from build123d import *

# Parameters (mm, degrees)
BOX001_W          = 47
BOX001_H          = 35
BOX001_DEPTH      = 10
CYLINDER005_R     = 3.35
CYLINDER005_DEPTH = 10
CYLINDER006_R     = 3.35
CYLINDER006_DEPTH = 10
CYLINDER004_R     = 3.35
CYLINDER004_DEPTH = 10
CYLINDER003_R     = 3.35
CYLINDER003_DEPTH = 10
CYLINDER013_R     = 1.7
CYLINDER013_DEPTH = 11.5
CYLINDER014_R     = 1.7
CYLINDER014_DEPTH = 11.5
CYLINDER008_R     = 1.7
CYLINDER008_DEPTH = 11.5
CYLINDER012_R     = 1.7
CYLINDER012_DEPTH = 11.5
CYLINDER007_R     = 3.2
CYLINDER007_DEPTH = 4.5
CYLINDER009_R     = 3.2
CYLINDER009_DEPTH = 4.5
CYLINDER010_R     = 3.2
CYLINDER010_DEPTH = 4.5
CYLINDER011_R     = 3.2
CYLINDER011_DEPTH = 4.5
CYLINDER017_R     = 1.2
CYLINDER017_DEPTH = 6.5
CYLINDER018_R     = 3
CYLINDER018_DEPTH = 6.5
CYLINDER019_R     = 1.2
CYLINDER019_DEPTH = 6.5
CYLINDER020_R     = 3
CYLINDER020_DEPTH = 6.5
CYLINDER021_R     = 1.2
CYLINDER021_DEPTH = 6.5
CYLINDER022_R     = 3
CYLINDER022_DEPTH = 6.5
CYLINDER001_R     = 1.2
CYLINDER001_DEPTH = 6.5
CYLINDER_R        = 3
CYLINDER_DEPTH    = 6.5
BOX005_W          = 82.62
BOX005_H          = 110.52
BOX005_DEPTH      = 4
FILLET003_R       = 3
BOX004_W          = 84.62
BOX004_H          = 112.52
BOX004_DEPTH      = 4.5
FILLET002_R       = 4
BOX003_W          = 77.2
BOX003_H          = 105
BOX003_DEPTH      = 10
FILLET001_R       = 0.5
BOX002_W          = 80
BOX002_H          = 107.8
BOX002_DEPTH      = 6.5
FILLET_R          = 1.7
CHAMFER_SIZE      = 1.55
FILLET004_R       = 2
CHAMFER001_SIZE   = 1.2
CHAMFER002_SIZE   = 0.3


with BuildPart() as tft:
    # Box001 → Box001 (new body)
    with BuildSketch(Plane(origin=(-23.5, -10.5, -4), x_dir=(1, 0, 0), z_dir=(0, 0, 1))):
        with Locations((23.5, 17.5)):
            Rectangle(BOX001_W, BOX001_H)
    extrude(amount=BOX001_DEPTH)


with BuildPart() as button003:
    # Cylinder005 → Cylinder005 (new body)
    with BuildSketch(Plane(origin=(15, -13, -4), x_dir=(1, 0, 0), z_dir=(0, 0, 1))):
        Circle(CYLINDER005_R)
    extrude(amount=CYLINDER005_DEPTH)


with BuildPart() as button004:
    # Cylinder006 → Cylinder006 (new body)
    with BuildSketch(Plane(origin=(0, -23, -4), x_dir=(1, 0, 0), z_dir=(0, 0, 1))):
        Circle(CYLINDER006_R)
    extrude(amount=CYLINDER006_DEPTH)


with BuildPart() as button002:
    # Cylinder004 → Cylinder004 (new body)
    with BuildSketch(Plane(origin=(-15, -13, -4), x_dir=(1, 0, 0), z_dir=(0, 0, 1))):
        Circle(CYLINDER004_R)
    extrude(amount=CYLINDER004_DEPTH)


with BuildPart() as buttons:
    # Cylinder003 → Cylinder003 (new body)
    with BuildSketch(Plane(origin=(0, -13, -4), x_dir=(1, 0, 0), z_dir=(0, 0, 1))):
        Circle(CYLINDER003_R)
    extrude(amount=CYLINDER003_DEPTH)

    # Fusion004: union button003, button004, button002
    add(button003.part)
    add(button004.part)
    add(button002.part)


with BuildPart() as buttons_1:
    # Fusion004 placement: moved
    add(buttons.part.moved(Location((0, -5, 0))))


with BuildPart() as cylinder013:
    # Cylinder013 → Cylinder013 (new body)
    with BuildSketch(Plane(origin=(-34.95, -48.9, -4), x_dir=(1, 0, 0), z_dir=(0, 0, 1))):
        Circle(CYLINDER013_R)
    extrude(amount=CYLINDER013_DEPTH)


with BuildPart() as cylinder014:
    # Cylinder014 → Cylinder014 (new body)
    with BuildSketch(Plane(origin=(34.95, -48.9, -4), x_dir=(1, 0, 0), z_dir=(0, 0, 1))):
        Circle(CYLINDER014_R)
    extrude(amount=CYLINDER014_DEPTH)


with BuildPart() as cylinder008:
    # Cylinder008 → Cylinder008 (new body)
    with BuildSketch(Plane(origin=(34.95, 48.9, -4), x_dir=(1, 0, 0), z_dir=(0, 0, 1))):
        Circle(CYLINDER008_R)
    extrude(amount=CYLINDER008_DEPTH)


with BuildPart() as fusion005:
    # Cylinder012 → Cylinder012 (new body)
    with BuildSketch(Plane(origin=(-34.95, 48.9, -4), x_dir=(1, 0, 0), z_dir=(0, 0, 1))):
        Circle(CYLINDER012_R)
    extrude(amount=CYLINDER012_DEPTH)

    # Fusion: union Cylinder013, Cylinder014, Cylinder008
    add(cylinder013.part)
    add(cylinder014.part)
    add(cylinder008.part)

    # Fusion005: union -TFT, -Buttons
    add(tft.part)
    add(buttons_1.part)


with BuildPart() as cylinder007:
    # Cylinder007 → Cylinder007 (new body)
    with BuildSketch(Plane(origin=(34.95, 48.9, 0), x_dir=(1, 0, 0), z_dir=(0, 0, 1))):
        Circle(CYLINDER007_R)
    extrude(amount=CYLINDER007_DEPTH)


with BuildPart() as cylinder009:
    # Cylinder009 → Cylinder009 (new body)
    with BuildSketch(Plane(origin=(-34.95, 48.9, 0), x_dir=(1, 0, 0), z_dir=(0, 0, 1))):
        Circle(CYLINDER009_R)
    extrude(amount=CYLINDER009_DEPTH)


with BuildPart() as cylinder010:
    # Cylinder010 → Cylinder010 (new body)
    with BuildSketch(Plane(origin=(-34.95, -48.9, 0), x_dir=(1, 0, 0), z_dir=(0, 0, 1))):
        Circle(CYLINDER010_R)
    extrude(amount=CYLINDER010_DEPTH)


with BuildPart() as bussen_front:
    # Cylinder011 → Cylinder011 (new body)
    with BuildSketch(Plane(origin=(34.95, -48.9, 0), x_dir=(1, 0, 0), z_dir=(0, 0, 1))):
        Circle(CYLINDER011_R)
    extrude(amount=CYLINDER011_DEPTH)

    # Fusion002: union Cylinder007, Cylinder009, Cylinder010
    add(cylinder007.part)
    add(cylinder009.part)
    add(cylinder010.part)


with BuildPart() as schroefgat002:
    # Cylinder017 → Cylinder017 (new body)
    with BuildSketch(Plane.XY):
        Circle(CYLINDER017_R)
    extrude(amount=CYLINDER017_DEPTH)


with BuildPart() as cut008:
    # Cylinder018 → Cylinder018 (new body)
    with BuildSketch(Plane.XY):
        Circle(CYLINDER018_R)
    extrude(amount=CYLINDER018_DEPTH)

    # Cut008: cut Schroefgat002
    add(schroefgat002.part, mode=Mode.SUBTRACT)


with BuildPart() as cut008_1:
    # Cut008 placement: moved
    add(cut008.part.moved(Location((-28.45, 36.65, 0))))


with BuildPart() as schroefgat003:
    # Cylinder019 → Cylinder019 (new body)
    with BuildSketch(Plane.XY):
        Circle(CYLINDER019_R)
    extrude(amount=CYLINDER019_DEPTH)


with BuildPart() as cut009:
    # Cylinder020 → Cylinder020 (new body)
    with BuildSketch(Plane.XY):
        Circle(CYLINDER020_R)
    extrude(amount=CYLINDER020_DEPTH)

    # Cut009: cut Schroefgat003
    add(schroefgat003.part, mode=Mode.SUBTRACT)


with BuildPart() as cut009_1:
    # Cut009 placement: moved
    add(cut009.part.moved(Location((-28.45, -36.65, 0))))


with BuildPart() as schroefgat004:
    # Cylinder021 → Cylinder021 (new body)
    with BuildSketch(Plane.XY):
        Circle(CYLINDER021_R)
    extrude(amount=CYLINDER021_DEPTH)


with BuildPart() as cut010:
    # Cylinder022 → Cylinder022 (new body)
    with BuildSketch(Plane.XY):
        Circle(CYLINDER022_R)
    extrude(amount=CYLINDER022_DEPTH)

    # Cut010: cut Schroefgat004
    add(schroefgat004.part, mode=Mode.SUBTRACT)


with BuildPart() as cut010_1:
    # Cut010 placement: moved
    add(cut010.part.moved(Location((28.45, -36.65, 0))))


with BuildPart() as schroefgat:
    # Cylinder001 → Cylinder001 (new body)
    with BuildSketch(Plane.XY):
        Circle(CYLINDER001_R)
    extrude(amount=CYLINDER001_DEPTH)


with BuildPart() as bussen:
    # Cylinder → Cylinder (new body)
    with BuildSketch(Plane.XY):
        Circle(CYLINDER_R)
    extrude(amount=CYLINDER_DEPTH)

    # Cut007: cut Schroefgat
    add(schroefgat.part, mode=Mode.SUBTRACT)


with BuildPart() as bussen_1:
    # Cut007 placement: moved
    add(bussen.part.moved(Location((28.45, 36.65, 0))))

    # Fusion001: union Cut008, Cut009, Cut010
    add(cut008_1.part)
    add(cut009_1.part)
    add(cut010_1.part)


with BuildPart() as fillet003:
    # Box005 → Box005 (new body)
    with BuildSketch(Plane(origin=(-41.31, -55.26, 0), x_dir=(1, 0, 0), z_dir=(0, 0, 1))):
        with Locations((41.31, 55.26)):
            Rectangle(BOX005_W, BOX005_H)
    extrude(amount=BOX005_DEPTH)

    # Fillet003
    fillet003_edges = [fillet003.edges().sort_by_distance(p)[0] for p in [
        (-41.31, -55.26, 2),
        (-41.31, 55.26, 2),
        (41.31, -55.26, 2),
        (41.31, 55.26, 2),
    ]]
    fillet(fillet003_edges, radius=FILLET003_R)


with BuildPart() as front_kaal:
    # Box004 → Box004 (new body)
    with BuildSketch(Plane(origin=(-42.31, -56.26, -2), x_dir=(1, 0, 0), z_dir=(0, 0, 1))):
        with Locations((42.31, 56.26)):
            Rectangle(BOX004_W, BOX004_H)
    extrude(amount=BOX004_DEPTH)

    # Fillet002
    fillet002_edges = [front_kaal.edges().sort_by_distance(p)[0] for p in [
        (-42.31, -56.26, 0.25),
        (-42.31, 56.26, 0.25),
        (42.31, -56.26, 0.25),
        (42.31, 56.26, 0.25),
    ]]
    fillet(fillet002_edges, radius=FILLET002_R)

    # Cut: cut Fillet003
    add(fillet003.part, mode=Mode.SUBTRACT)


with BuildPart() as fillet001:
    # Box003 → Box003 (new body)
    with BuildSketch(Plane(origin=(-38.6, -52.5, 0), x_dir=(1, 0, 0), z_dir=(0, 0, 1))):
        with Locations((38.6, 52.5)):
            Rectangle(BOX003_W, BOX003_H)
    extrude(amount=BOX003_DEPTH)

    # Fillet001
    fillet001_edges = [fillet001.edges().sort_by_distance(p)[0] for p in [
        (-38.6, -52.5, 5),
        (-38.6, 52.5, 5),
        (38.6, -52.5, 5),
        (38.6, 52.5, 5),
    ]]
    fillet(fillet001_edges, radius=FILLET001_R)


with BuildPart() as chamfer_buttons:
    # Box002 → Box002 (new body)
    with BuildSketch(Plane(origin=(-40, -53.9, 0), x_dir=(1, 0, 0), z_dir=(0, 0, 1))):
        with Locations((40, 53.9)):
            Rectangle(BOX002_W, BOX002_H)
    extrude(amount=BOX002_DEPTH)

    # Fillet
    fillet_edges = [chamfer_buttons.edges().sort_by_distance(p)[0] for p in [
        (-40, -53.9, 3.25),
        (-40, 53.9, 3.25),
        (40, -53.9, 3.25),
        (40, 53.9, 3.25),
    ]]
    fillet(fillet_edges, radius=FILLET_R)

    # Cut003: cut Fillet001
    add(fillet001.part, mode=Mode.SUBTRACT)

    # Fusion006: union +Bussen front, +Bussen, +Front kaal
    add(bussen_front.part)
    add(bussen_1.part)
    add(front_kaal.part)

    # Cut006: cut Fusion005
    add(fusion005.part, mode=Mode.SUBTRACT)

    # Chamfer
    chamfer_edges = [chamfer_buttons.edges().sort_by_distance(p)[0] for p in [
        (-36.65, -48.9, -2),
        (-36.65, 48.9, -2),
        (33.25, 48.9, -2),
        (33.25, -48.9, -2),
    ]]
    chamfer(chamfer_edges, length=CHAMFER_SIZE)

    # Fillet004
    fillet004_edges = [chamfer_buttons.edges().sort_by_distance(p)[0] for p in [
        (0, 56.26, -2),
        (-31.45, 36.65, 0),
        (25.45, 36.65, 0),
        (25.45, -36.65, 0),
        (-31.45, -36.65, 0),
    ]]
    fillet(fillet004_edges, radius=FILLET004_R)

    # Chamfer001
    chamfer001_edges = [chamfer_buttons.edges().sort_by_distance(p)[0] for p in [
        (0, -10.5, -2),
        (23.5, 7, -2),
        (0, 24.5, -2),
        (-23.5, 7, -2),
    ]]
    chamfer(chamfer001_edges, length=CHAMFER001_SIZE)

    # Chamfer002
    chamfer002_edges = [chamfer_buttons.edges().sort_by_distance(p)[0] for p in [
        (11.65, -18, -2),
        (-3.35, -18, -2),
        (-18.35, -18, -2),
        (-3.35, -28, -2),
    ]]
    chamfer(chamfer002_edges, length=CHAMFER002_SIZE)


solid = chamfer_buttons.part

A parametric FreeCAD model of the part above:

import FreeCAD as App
import Part
import Sketcher
from FreeCAD import Vector
Q = App.Units.Quantity


def edges_at(feature, points):
    """Names of the edges that pass closest to the given points."""
    edges = feature.Shape.Edges
    near = lambda p: min(range(len(edges)), key=lambda i: edges[i].distToShape(Part.Vertex(*p))[0])
    return sorted({f"Edge{near(p) + 1}" for p in points})

doc = App.newDocument("Part")
params = doc.addObject("Spreadsheet::Sheet", "Params")
for row, (alias, value) in enumerate([
    ("sketch1_width", "47 mm"),
    ("sketch1_height", "35 mm"),
    ("pad1_length", "10 mm"),
    ("sketch2_diameter", "6.7 mm"),
    ("pad2_length", "10 mm"),
    ("sketch3_diameter", "6.7 mm"),
    ("pad3_length", "10 mm"),
    ("sketch4_diameter", "6.7 mm"),
    ("pad4_length", "10 mm"),
    ("sketch5_diameter", "6.7 mm"),
    ("pad5_length", "10 mm"),
    ("sketch6_diameter", "3.4 mm"),
    ("pad6_length", "11.5 mm"),
    ("sketch7_diameter", "3.4 mm"),
    ("pad7_length", "11.5 mm"),
    ("sketch8_diameter", "3.4 mm"),
    ("pad8_length", "11.5 mm"),
    ("sketch9_diameter", "3.4 mm"),
    ("pad9_length", "11.5 mm"),
    ("sketch10_diameter", "6.4 mm"),
    ("pad10_length", "4.5 mm"),
    ("sketch11_diameter", "6.4 mm"),
    ("pad11_length", "4.5 mm"),
    ("sketch12_diameter", "6.4 mm"),
    ("pad12_length", "4.5 mm"),
    ("sketch13_diameter", "6.4 mm"),
    ("pad13_length", "4.5 mm"),
    ("sketch14_diameter", "2.4 mm"),
    ("pad14_length", "6.5 mm"),
    ("sketch15_diameter", "6 mm"),
    ("pad15_length", "6.5 mm"),
    ("sketch16_diameter", "2.4 mm"),
    ("pad16_length", "6.5 mm"),
    ("sketch17_diameter", "6 mm"),
    ("pad17_length", "6.5 mm"),
    ("sketch18_diameter", "2.4 mm"),
    ("pad18_length", "6.5 mm"),
    ("sketch19_diameter", "6 mm"),
    ("pad19_length", "6.5 mm"),
    ("sketch20_diameter", "2.4 mm"),
    ("pad20_length", "6.5 mm"),
    ("sketch21_diameter", "6 mm"),
    ("pad21_length", "6.5 mm"),
    ("sketch22_width", "82.62 mm"),
    ("sketch22_height", "110.52 mm"),
    ("pad22_length", "4 mm"),
    ("fillet_radius", "3 mm"),
    ("sketch23_width", "84.62 mm"),
    ("sketch23_height", "112.52 mm"),
    ("pad23_length", "4.5 mm"),
    ("fillet2_radius", "4 mm"),
    ("sketch24_height", "105 mm"),
    ("sketch24_width", "77.2 mm"),
    ("pad24_length", "10 mm"),
    ("fillet3_radius", "0.5 mm"),
    ("sketch25_width", "80 mm"),
    ("sketch25_height", "107.8 mm"),
    ("pad25_length", "6.5 mm"),
    ("fillet4_radius", "1.7 mm"),
    ("chamfer_size", "1.55 mm"),
    ("fillet5_radius", "2 mm"),
    ("chamfer2_size", "1.2 mm"),
    ("chamfer3_size", "0.3 mm"),
], start=1):
    params.set(f"A{row}", alias)
    params.set(f"B{row}", "=" + value)
    params.setAlias(f"B{row}", alias)

body = doc.addObject("PartDesign::Body", "Body")

sketch1 = body.newObject("Sketcher::SketchObject", "Sketch")
sketch1.AttachmentSupport = (doc.getObject("XY_Plane"), [""])
sketch1.MapMode = "FlatFace"
sketch1.AttachmentOffset = App.Placement(Vector(0, 0, -4), App.Rotation())
sketch1.addGeometry(Part.LineSegment(Vector(-24, 24, 0), Vector(-24, -10, 0)), False)
sketch1.addGeometry(Part.LineSegment(Vector(-24, -10, 0), Vector(24, -10, 0)), False)
sketch1.addGeometry(Part.LineSegment(Vector(24, -10, 0), Vector(24, 24, 0)), False)
sketch1.addGeometry(Part.LineSegment(Vector(24, 24, 0), Vector(-24, 24, 0)), False)
sketch1.addConstraint(Sketcher.Constraint("Coincident", 0, 2, 1, 1))
sketch1.addConstraint(Sketcher.Constraint("Coincident", 1, 2, 2, 1))
sketch1.addConstraint(Sketcher.Constraint("Coincident", 2, 2, 3, 1))
sketch1.addConstraint(Sketcher.Constraint("Coincident", 3, 2, 0, 1))
sketch1.addConstraint(Sketcher.Constraint("Vertical", 0))
sketch1.addConstraint(Sketcher.Constraint("Horizontal", 1))
sketch1.addConstraint(Sketcher.Constraint("Vertical", 2))
sketch1.addConstraint(Sketcher.Constraint("Horizontal", 3))
sketch1.addConstraint(Sketcher.Constraint("DistanceX", 1, 1, 1, 2, Q("47 mm")))
sketch1.addConstraint(Sketcher.Constraint("DistanceY", 0, 2, 0, 1, Q("35 mm")))
sketch1.addConstraint(Sketcher.Constraint("DistanceX", 0, 2, -1, 1, Q("23.5 mm")))
sketch1.addConstraint(Sketcher.Constraint("DistanceY", 0, 2, -1, 1, Q("10.5 mm")))
sketch1.setExpression("Constraints[8]", "Params.sketch1_width")
sketch1.setExpression("Constraints[9]", "Params.sketch1_height")
pad1 = body.newObject("PartDesign::Pad", "Pad")
pad1.Profile = sketch1
pad1.setExpression("Length", "Params.pad1_length")
body2 = doc.addObject("PartDesign::Body", "Body001")

sketch2 = body2.newObject("Sketcher::SketchObject", "Sketch001")
sketch2.AttachmentSupport = (doc.getObject("XY_Plane001"), [""])
sketch2.MapMode = "FlatFace"
sketch2.AttachmentOffset = App.Placement(Vector(0, 0, -4), App.Rotation())
sketch2.addGeometry(Part.Circle(Vector(15, -13, 0), Vector(0, 0, 1), 3.4), False)
sketch2.addConstraint(Sketcher.Constraint("Diameter", 0, Q("6.7 mm")))
sketch2.addConstraint(Sketcher.Constraint("DistanceX", -1, 1, 0, 3, Q("15 mm")))
sketch2.addConstraint(Sketcher.Constraint("DistanceY", 0, 3, -1, 1, Q("13 mm")))
sketch2.setExpression("Constraints[0]", "Params.sketch2_diameter")
pad2 = body2.newObject("PartDesign::Pad", "Pad001")
pad2.Profile = sketch2
pad2.setExpression("Length", "Params.pad2_length")
body3 = doc.addObject("PartDesign::Body", "Body002")

sketch3 = body3.newObject("Sketcher::SketchObject", "Sketch002")
sketch3.AttachmentSupport = (doc.getObject("XY_Plane002"), [""])
sketch3.MapMode = "FlatFace"
sketch3.AttachmentOffset = App.Placement(Vector(0, 0, -4), App.Rotation())
sketch3.addGeometry(Part.Circle(Vector(0, -23, 0), Vector(0, 0, 1), 3.4), False)
sketch3.addConstraint(Sketcher.Constraint("PointOnObject", 0, 3, -2))
sketch3.addConstraint(Sketcher.Constraint("Diameter", 0, Q("6.7 mm")))
sketch3.addConstraint(Sketcher.Constraint("DistanceY", 0, 3, -1, 1, Q("23 mm")))
sketch3.setExpression("Constraints[1]", "Params.sketch3_diameter")
pad3 = body3.newObject("PartDesign::Pad", "Pad002")
pad3.Profile = sketch3
pad3.setExpression("Length", "Params.pad3_length")
body4 = doc.addObject("PartDesign::Body", "Body003")

sketch4 = body4.newObject("Sketcher::SketchObject", "Sketch003")
sketch4.AttachmentSupport = (doc.getObject("XY_Plane003"), [""])
sketch4.MapMode = "FlatFace"
sketch4.AttachmentOffset = App.Placement(Vector(0, 0, -4), App.Rotation())
sketch4.addGeometry(Part.Circle(Vector(-15, -13, 0), Vector(0, 0, 1), 3.4), False)
sketch4.addConstraint(Sketcher.Constraint("Diameter", 0, Q("6.7 mm")))
sketch4.addConstraint(Sketcher.Constraint("DistanceX", 0, 3, -1, 1, Q("15 mm")))
sketch4.addConstraint(Sketcher.Constraint("DistanceY", 0, 3, -1, 1, Q("13 mm")))
sketch4.setExpression("Constraints[0]", "Params.sketch4_diameter")
pad4 = body4.newObject("PartDesign::Pad", "Pad003")
pad4.Profile = sketch4
pad4.setExpression("Length", "Params.pad4_length")
body5 = doc.addObject("PartDesign::Body", "Body004")
body5.AllowCompound = True

sketch5 = body5.newObject("Sketcher::SketchObject", "Sketch004")
sketch5.AttachmentSupport = (doc.getObject("XY_Plane004"), [""])
sketch5.MapMode = "FlatFace"
sketch5.AttachmentOffset = App.Placement(Vector(0, 0, -4), App.Rotation())
sketch5.addGeometry(Part.Circle(Vector(0, -13, 0), Vector(0, 0, 1), 3.4), False)
sketch5.addConstraint(Sketcher.Constraint("PointOnObject", 0, 3, -2))
sketch5.addConstraint(Sketcher.Constraint("Diameter", 0, Q("6.7 mm")))
sketch5.addConstraint(Sketcher.Constraint("DistanceY", 0, 3, -1, 1, Q("13 mm")))
sketch5.setExpression("Constraints[1]", "Params.sketch5_diameter")
pad5 = body5.newObject("PartDesign::Pad", "Pad004")
pad5.Profile = sketch5
pad5.setExpression("Length", "Params.pad5_length")
doc.recompute()

boolean = body5.newObject("PartDesign::Boolean", "Boolean")
boolean.Type = "Fuse"
boolean.addObjects([body2])
doc.recompute()

boolean2 = body5.newObject("PartDesign::Boolean", "Boolean001")
boolean2.Type = "Fuse"
boolean2.addObjects([body3])
doc.recompute()

boolean3 = body5.newObject("PartDesign::Boolean", "Boolean002")
boolean3.Type = "Fuse"
boolean3.addObjects([body4])
body6 = doc.addObject("PartDesign::Body", "Body005")
body6.AllowCompound = True
doc.recompute()

body5.Placement = App.Placement(Vector(0, -5, 0), App.Rotation(Vector(0, 0, 1), 0))
boolean4 = body6.newObject("PartDesign::Boolean", "Boolean003")
boolean4.Type = "Fuse"
boolean4.addObjects([body5])
body7 = doc.addObject("PartDesign::Body", "Body006")

sketch6 = body7.newObject("Sketcher::SketchObject", "Sketch005")
sketch6.AttachmentSupport = (doc.getObject("XY_Plane006"), [""])
sketch6.MapMode = "FlatFace"
sketch6.AttachmentOffset = App.Placement(Vector(0, 0, -4), App.Rotation())
sketch6.addGeometry(Part.Circle(Vector(-35, -48.9, 0), Vector(0, 0, 1), 1.7), False)
sketch6.addConstraint(Sketcher.Constraint("Diameter", 0, Q("3.4 mm")))
sketch6.addConstraint(Sketcher.Constraint("DistanceY", 0, 3, -1, 1, Q("48.9 mm")))
sketch6.addConstraint(Sketcher.Constraint("DistanceX", 0, 3, -1, 1, Q("34.95 mm")))
sketch6.setExpression("Constraints[0]", "Params.sketch6_diameter")
pad6 = body7.newObject("PartDesign::Pad", "Pad005")
pad6.Profile = sketch6
pad6.setExpression("Length", "Params.pad6_length")
body8 = doc.addObject("PartDesign::Body", "Body007")

sketch7 = body8.newObject("Sketcher::SketchObject", "Sketch006")
sketch7.AttachmentSupport = (doc.getObject("XY_Plane007"), [""])
sketch7.MapMode = "FlatFace"
sketch7.AttachmentOffset = App.Placement(Vector(0, 0, -4), App.Rotation())
sketch7.addGeometry(Part.Circle(Vector(35, -48.9, 0), Vector(0, 0, 1), 1.7), False)
sketch7.addConstraint(Sketcher.Constraint("Diameter", 0, Q("3.4 mm")))
sketch7.addConstraint(Sketcher.Constraint("DistanceY", 0, 3, -1, 1, Q("48.9 mm")))
sketch7.addConstraint(Sketcher.Constraint("DistanceX", -1, 1, 0, 3, Q("34.95 mm")))
sketch7.setExpression("Constraints[0]", "Params.sketch7_diameter")
pad7 = body8.newObject("PartDesign::Pad", "Pad006")
pad7.Profile = sketch7
pad7.setExpression("Length", "Params.pad7_length")
body9 = doc.addObject("PartDesign::Body", "Body008")

sketch8 = body9.newObject("Sketcher::SketchObject", "Sketch007")
sketch8.AttachmentSupport = (doc.getObject("XY_Plane008"), [""])
sketch8.MapMode = "FlatFace"
sketch8.AttachmentOffset = App.Placement(Vector(0, 0, -4), App.Rotation())
sketch8.addGeometry(Part.Circle(Vector(35, 48.9, 0), Vector(0, 0, 1), 1.7), False)
sketch8.addConstraint(Sketcher.Constraint("Diameter", 0, Q("3.4 mm")))
sketch8.addConstraint(Sketcher.Constraint("DistanceY", -1, 1, 0, 3, Q("48.9 mm")))
sketch8.addConstraint(Sketcher.Constraint("DistanceX", -1, 1, 0, 3, Q("34.95 mm")))
sketch8.setExpression("Constraints[0]", "Params.sketch8_diameter")
pad8 = body9.newObject("PartDesign::Pad", "Pad007")
pad8.Profile = sketch8
pad8.setExpression("Length", "Params.pad8_length")
body10 = doc.addObject("PartDesign::Body", "Body009")
body10.AllowCompound = True

sketch9 = body10.newObject("Sketcher::SketchObject", "Sketch008")
sketch9.AttachmentSupport = (doc.getObject("XY_Plane009"), [""])
sketch9.MapMode = "FlatFace"
sketch9.AttachmentOffset = App.Placement(Vector(0, 0, -4), App.Rotation())
sketch9.addGeometry(Part.Circle(Vector(-35, 48.9, 0), Vector(0, 0, 1), 1.7), False)
sketch9.addConstraint(Sketcher.Constraint("Diameter", 0, Q("3.4 mm")))
sketch9.addConstraint(Sketcher.Constraint("DistanceY", -1, 1, 0, 3, Q("48.9 mm")))
sketch9.addConstraint(Sketcher.Constraint("DistanceX", 0, 3, -1, 1, Q("34.95 mm")))
sketch9.setExpression("Constraints[0]", "Params.sketch9_diameter")
pad9 = body10.newObject("PartDesign::Pad", "Pad008")
pad9.Profile = sketch9
pad9.setExpression("Length", "Params.pad9_length")
doc.recompute()

boolean5 = body10.newObject("PartDesign::Boolean", "Boolean004")
boolean5.Type = "Fuse"
boolean5.addObjects([body7])
doc.recompute()

boolean6 = body10.newObject("PartDesign::Boolean", "Boolean005")
boolean6.Type = "Fuse"
boolean6.addObjects([body8])
doc.recompute()

boolean7 = body10.newObject("PartDesign::Boolean", "Boolean006")
boolean7.Type = "Fuse"
boolean7.addObjects([body9])
doc.recompute()

boolean8 = body10.newObject("PartDesign::Boolean", "Boolean007")
boolean8.Type = "Fuse"
boolean8.addObjects([body])
doc.recompute()

boolean9 = body10.newObject("PartDesign::Boolean", "Boolean008")
boolean9.Type = "Fuse"
boolean9.addObjects([body6])
body11 = doc.addObject("PartDesign::Body", "Body010")

sketch10 = body11.newObject("Sketcher::SketchObject", "Sketch009")
sketch10.AttachmentSupport = (doc.getObject("XY_Plane010"), [""])
sketch10.MapMode = "FlatFace"
sketch10.addGeometry(Part.Circle(Vector(35, 48.9, 0), Vector(0, 0, 1), 3.2), False)
sketch10.addConstraint(Sketcher.Constraint("Diameter", 0, Q("6.4 mm")))
sketch10.addConstraint(Sketcher.Constraint("DistanceY", -1, 1, 0, 3, Q("48.9 mm")))
sketch10.addConstraint(Sketcher.Constraint("DistanceX", -1, 1, 0, 3, Q("34.95 mm")))
sketch10.setExpression("Constraints[0]", "Params.sketch10_diameter")
pad10 = body11.newObject("PartDesign::Pad", "Pad009")
pad10.Profile = sketch10
pad10.setExpression("Length", "Params.pad10_length")
body12 = doc.addObject("PartDesign::Body", "Body011")

sketch11 = body12.newObject("Sketcher::SketchObject", "Sketch010")
sketch11.AttachmentSupport = (doc.getObject("XY_Plane011"), [""])
sketch11.MapMode = "FlatFace"
sketch11.addGeometry(Part.Circle(Vector(-35, 48.9, 0), Vector(0, 0, 1), 3.2), False)
sketch11.addConstraint(Sketcher.Constraint("Diameter", 0, Q("6.4 mm")))
sketch11.addConstraint(Sketcher.Constraint("DistanceY", -1, 1, 0, 3, Q("48.9 mm")))
sketch11.addConstraint(Sketcher.Constraint("DistanceX", 0, 3, -1, 1, Q("34.95 mm")))
sketch11.setExpression("Constraints[0]", "Params.sketch11_diameter")
pad11 = body12.newObject("PartDesign::Pad", "Pad010")
pad11.Profile = sketch11
pad11.setExpression("Length", "Params.pad11_length")
body13 = doc.addObject("PartDesign::Body", "Body012")

sketch12 = body13.newObject("Sketcher::SketchObject", "Sketch011")
sketch12.AttachmentSupport = (doc.getObject("XY_Plane012"), [""])
sketch12.MapMode = "FlatFace"
sketch12.addGeometry(Part.Circle(Vector(-35, -48.9, 0), Vector(0, 0, 1), 3.2), False)
sketch12.addConstraint(Sketcher.Constraint("Diameter", 0, Q("6.4 mm")))
sketch12.addConstraint(Sketcher.Constraint("DistanceY", 0, 3, -1, 1, Q("48.9 mm")))
sketch12.addConstraint(Sketcher.Constraint("DistanceX", 0, 3, -1, 1, Q("34.95 mm")))
sketch12.setExpression("Constraints[0]", "Params.sketch12_diameter")
pad12 = body13.newObject("PartDesign::Pad", "Pad011")
pad12.Profile = sketch12
pad12.setExpression("Length", "Params.pad12_length")
body14 = doc.addObject("PartDesign::Body", "Body013")
body14.AllowCompound = True

sketch13 = body14.newObject("Sketcher::SketchObject", "Sketch012")
sketch13.AttachmentSupport = (doc.getObject("XY_Plane013"), [""])
sketch13.MapMode = "FlatFace"
sketch13.addGeometry(Part.Circle(Vector(35, -48.9, 0), Vector(0, 0, 1), 3.2), False)
sketch13.addConstraint(Sketcher.Constraint("Diameter", 0, Q("6.4 mm")))
sketch13.addConstraint(Sketcher.Constraint("DistanceY", 0, 3, -1, 1, Q("48.9 mm")))
sketch13.addConstraint(Sketcher.Constraint("DistanceX", -1, 1, 0, 3, Q("34.95 mm")))
sketch13.setExpression("Constraints[0]", "Params.sketch13_diameter")
pad13 = body14.newObject("PartDesign::Pad", "Pad012")
pad13.Profile = sketch13
pad13.setExpression("Length", "Params.pad13_length")
doc.recompute()

boolean10 = body14.newObject("PartDesign::Boolean", "Boolean009")
boolean10.Type = "Fuse"
boolean10.addObjects([body11])
doc.recompute()

boolean11 = body14.newObject("PartDesign::Boolean", "Boolean010")
boolean11.Type = "Fuse"
boolean11.addObjects([body12])
doc.recompute()

boolean12 = body14.newObject("PartDesign::Boolean", "Boolean011")
boolean12.Type = "Fuse"
boolean12.addObjects([body13])
body15 = doc.addObject("PartDesign::Body", "Body014")

sketch14 = body15.newObject("Sketcher::SketchObject", "Sketch013")
sketch14.AttachmentSupport = (doc.getObject("XY_Plane014"), [""])
sketch14.MapMode = "FlatFace"
sketch14.addGeometry(Part.Circle(Vector(0, 0, 0), Vector(0, 0, 1), 1.2), False)
sketch14.addConstraint(Sketcher.Constraint("Coincident", 0, 3, -1, 1))
sketch14.addConstraint(Sketcher.Constraint("Diameter", 0, Q("2.4 mm")))
sketch14.setExpression("Constraints[1]", "Params.sketch14_diameter")
pad14 = body15.newObject("PartDesign::Pad", "Pad013")
pad14.Profile = sketch14
pad14.setExpression("Length", "Params.pad14_length")
body16 = doc.addObject("PartDesign::Body", "Body015")

sketch15 = body16.newObject("Sketcher::SketchObject", "Sketch014")
sketch15.AttachmentSupport = (doc.getObject("XY_Plane015"), [""])
sketch15.MapMode = "FlatFace"
sketch15.addGeometry(Part.Circle(Vector(0, 0, 0), Vector(0, 0, 1), 3), False)
sketch15.addConstraint(Sketcher.Constraint("Coincident", 0, 3, -1, 1))
sketch15.addConstraint(Sketcher.Constraint("Diameter", 0, Q("6 mm")))
sketch15.setExpression("Constraints[1]", "Params.sketch15_diameter")
pad15 = body16.newObject("PartDesign::Pad", "Pad014")
pad15.Profile = sketch15
pad15.setExpression("Length", "Params.pad15_length")
doc.recompute()

boolean13 = body16.newObject("PartDesign::Boolean", "Boolean012")
boolean13.Type = "Cut"
boolean13.addObjects([body15])
body17 = doc.addObject("PartDesign::Body", "Body016")
doc.recompute()

body16.Placement = App.Placement(Vector(-28.45, 36.65, 0), App.Rotation(Vector(0, 0, 1), 0))
boolean14 = body17.newObject("PartDesign::Boolean", "Boolean013")
boolean14.Type = "Fuse"
boolean14.addObjects([body16])
body18 = doc.addObject("PartDesign::Body", "Body017")

sketch16 = body18.newObject("Sketcher::SketchObject", "Sketch015")
sketch16.AttachmentSupport = (doc.getObject("XY_Plane017"), [""])
sketch16.MapMode = "FlatFace"
sketch16.addGeometry(Part.Circle(Vector(0, 0, 0), Vector(0, 0, 1), 1.2), False)
sketch16.addConstraint(Sketcher.Constraint("Coincident", 0, 3, -1, 1))
sketch16.addConstraint(Sketcher.Constraint("Diameter", 0, Q("2.4 mm")))
sketch16.setExpression("Constraints[1]", "Params.sketch16_diameter")
pad16 = body18.newObject("PartDesign::Pad", "Pad015")
pad16.Profile = sketch16
pad16.setExpression("Length", "Params.pad16_length")
body19 = doc.addObject("PartDesign::Body", "Body018")

sketch17 = body19.newObject("Sketcher::SketchObject", "Sketch016")
sketch17.AttachmentSupport = (doc.getObject("XY_Plane018"), [""])
sketch17.MapMode = "FlatFace"
sketch17.addGeometry(Part.Circle(Vector(0, 0, 0), Vector(0, 0, 1), 3), False)
sketch17.addConstraint(Sketcher.Constraint("Coincident", 0, 3, -1, 1))
sketch17.addConstraint(Sketcher.Constraint("Diameter", 0, Q("6 mm")))
sketch17.setExpression("Constraints[1]", "Params.sketch17_diameter")
pad17 = body19.newObject("PartDesign::Pad", "Pad016")
pad17.Profile = sketch17
pad17.setExpression("Length", "Params.pad17_length")
doc.recompute()

boolean15 = body19.newObject("PartDesign::Boolean", "Boolean014")
boolean15.Type = "Cut"
boolean15.addObjects([body18])
body20 = doc.addObject("PartDesign::Body", "Body019")
doc.recompute()

body19.Placement = App.Placement(Vector(-28.45, -36.65, 0), App.Rotation(Vector(0, 0, 1), 0))
boolean16 = body20.newObject("PartDesign::Boolean", "Boolean015")
boolean16.Type = "Fuse"
boolean16.addObjects([body19])
body21 = doc.addObject("PartDesign::Body", "Body020")

sketch18 = body21.newObject("Sketcher::SketchObject", "Sketch017")
sketch18.AttachmentSupport = (doc.getObject("XY_Plane020"), [""])
sketch18.MapMode = "FlatFace"
sketch18.addGeometry(Part.Circle(Vector(0, 0, 0), Vector(0, 0, 1), 1.2), False)
sketch18.addConstraint(Sketcher.Constraint("Coincident", 0, 3, -1, 1))
sketch18.addConstraint(Sketcher.Constraint("Diameter", 0, Q("2.4 mm")))
sketch18.setExpression("Constraints[1]", "Params.sketch18_diameter")
pad18 = body21.newObject("PartDesign::Pad", "Pad017")
pad18.Profile = sketch18
pad18.setExpression("Length", "Params.pad18_length")
body22 = doc.addObject("PartDesign::Body", "Body021")

sketch19 = body22.newObject("Sketcher::SketchObject", "Sketch018")
sketch19.AttachmentSupport = (doc.getObject("XY_Plane021"), [""])
sketch19.MapMode = "FlatFace"
sketch19.addGeometry(Part.Circle(Vector(0, 0, 0), Vector(0, 0, 1), 3), False)
sketch19.addConstraint(Sketcher.Constraint("Coincident", 0, 3, -1, 1))
sketch19.addConstraint(Sketcher.Constraint("Diameter", 0, Q("6 mm")))
sketch19.setExpression("Constraints[1]", "Params.sketch19_diameter")
pad19 = body22.newObject("PartDesign::Pad", "Pad018")
pad19.Profile = sketch19
pad19.setExpression("Length", "Params.pad19_length")
doc.recompute()

boolean17 = body22.newObject("PartDesign::Boolean", "Boolean016")
boolean17.Type = "Cut"
boolean17.addObjects([body21])
body23 = doc.addObject("PartDesign::Body", "Body022")
doc.recompute()

body22.Placement = App.Placement(Vector(28.45, -36.65, 0), App.Rotation(Vector(0, 0, 1), 0))
boolean18 = body23.newObject("PartDesign::Boolean", "Boolean017")
boolean18.Type = "Fuse"
boolean18.addObjects([body22])
body24 = doc.addObject("PartDesign::Body", "Body023")

sketch20 = body24.newObject("Sketcher::SketchObject", "Sketch019")
sketch20.AttachmentSupport = (doc.getObject("XY_Plane023"), [""])
sketch20.MapMode = "FlatFace"
sketch20.addGeometry(Part.Circle(Vector(0, 0, 0), Vector(0, 0, 1), 1.2), False)
sketch20.addConstraint(Sketcher.Constraint("Coincident", 0, 3, -1, 1))
sketch20.addConstraint(Sketcher.Constraint("Diameter", 0, Q("2.4 mm")))
sketch20.setExpression("Constraints[1]", "Params.sketch20_diameter")
pad20 = body24.newObject("PartDesign::Pad", "Pad019")
pad20.Profile = sketch20
pad20.setExpression("Length", "Params.pad20_length")
body25 = doc.addObject("PartDesign::Body", "Body024")

sketch21 = body25.newObject("Sketcher::SketchObject", "Sketch020")
sketch21.AttachmentSupport = (doc.getObject("XY_Plane024"), [""])
sketch21.MapMode = "FlatFace"
sketch21.addGeometry(Part.Circle(Vector(0, 0, 0), Vector(0, 0, 1), 3), False)
sketch21.addConstraint(Sketcher.Constraint("Coincident", 0, 3, -1, 1))
sketch21.addConstraint(Sketcher.Constraint("Diameter", 0, Q("6 mm")))
sketch21.setExpression("Constraints[1]", "Params.sketch21_diameter")
pad21 = body25.newObject("PartDesign::Pad", "Pad020")
pad21.Profile = sketch21
pad21.setExpression("Length", "Params.pad21_length")
doc.recompute()

boolean19 = body25.newObject("PartDesign::Boolean", "Boolean018")
boolean19.Type = "Cut"
boolean19.addObjects([body24])
body26 = doc.addObject("PartDesign::Body", "Body025")
body26.AllowCompound = True
doc.recompute()

body25.Placement = App.Placement(Vector(28.45, 36.65, 0), App.Rotation(Vector(0, 0, 1), 0))
boolean20 = body26.newObject("PartDesign::Boolean", "Boolean019")
boolean20.Type = "Fuse"
boolean20.addObjects([body25])
doc.recompute()

boolean21 = body26.newObject("PartDesign::Boolean", "Boolean020")
boolean21.Type = "Fuse"
boolean21.addObjects([body17])
doc.recompute()

boolean22 = body26.newObject("PartDesign::Boolean", "Boolean021")
boolean22.Type = "Fuse"
boolean22.addObjects([body20])
doc.recompute()

boolean23 = body26.newObject("PartDesign::Boolean", "Boolean022")
boolean23.Type = "Fuse"
boolean23.addObjects([body23])
body27 = doc.addObject("PartDesign::Body", "Body026")

sketch22 = body27.newObject("Sketcher::SketchObject", "Sketch021")
sketch22.AttachmentSupport = (doc.getObject("XY_Plane026"), [""])
sketch22.MapMode = "FlatFace"
sketch22.addGeometry(Part.LineSegment(Vector(-41, 55, 0), Vector(-41, -55, 0)), False)
sketch22.addGeometry(Part.LineSegment(Vector(-41, -55, 0), Vector(41, -55, 0)), False)
sketch22.addGeometry(Part.LineSegment(Vector(41, -55, 0), Vector(41, 55, 0)), False)
sketch22.addGeometry(Part.LineSegment(Vector(41, 55, 0), Vector(-41, 55, 0)), False)
sketch22.addConstraint(Sketcher.Constraint("Coincident", 0, 2, 1, 1))
sketch22.addConstraint(Sketcher.Constraint("Coincident", 1, 2, 2, 1))
sketch22.addConstraint(Sketcher.Constraint("Coincident", 2, 2, 3, 1))
sketch22.addConstraint(Sketcher.Constraint("Coincident", 3, 2, 0, 1))
sketch22.addConstraint(Sketcher.Constraint("Vertical", 0))
sketch22.addConstraint(Sketcher.Constraint("Horizontal", 1))
sketch22.addConstraint(Sketcher.Constraint("Vertical", 2))
sketch22.addConstraint(Sketcher.Constraint("Horizontal", 3))
sketch22.addConstraint(Sketcher.Constraint("Symmetric", 0, 2, 2, 2, -1, 1))
sketch22.addConstraint(Sketcher.Constraint("DistanceX", 1, 1, 1, 2, Q("82.62 mm")))
sketch22.addConstraint(Sketcher.Constraint("DistanceY", 0, 2, 0, 1, Q("110.52 mm")))
sketch22.setExpression("Constraints[9]", "Params.sketch22_width")
sketch22.setExpression("Constraints[10]", "Params.sketch22_height")
pad22 = body27.newObject("PartDesign::Pad", "Pad021")
pad22.Profile = sketch22
pad22.setExpression("Length", "Params.pad22_length")
doc.recompute()

fillet = body27.newObject("PartDesign::Fillet", "Fillet")
fillet.Base = (pad22, edges_at(pad22, [
    (-41.31, -55.26, 2),
    (-41.31, 55.26, 2),
    (41.31, -55.26, 2),
    (41.31, 55.26, 2),
]))
fillet.setExpression("Radius", "Params.fillet_radius")
body28 = doc.addObject("PartDesign::Body", "Body027")

sketch23 = body28.newObject("Sketcher::SketchObject", "Sketch022")
sketch23.AttachmentSupport = (doc.getObject("XY_Plane027"), [""])
sketch23.MapMode = "FlatFace"
sketch23.AttachmentOffset = App.Placement(Vector(0, 0, -2), App.Rotation())
sketch23.addGeometry(Part.LineSegment(Vector(-42, 56, 0), Vector(-42, -56, 0)), False)
sketch23.addGeometry(Part.LineSegment(Vector(-42, -56, 0), Vector(42, -56, 0)), False)
sketch23.addGeometry(Part.LineSegment(Vector(42, -56, 0), Vector(42, 56, 0)), False)
sketch23.addGeometry(Part.LineSegment(Vector(42, 56, 0), Vector(-42, 56, 0)), False)
sketch23.addConstraint(Sketcher.Constraint("Coincident", 0, 2, 1, 1))
sketch23.addConstraint(Sketcher.Constraint("Coincident", 1, 2, 2, 1))
sketch23.addConstraint(Sketcher.Constraint("Coincident", 2, 2, 3, 1))
sketch23.addConstraint(Sketcher.Constraint("Coincident", 3, 2, 0, 1))
sketch23.addConstraint(Sketcher.Constraint("Vertical", 0))
sketch23.addConstraint(Sketcher.Constraint("Horizontal", 1))
sketch23.addConstraint(Sketcher.Constraint("Vertical", 2))
sketch23.addConstraint(Sketcher.Constraint("Horizontal", 3))
sketch23.addConstraint(Sketcher.Constraint("Symmetric", 0, 2, 2, 2, -1, 1))
sketch23.addConstraint(Sketcher.Constraint("DistanceX", 1, 1, 1, 2, Q("84.62 mm")))
sketch23.addConstraint(Sketcher.Constraint("DistanceY", 0, 2, 0, 1, Q("112.52 mm")))
sketch23.setExpression("Constraints[9]", "Params.sketch23_width")
sketch23.setExpression("Constraints[10]", "Params.sketch23_height")
pad23 = body28.newObject("PartDesign::Pad", "Pad022")
pad23.Profile = sketch23
pad23.setExpression("Length", "Params.pad23_length")
doc.recompute()

fillet2 = body28.newObject("PartDesign::Fillet", "Fillet001")
fillet2.Base = (pad23, edges_at(pad23, [
    (-42.31, -56.26, 0.25),
    (-42.31, 56.26, 0.25),
    (42.31, -56.26, 0.25),
    (42.31, 56.26, 0.25),
]))
fillet2.setExpression("Radius", "Params.fillet2_radius")
doc.recompute()

boolean24 = body28.newObject("PartDesign::Boolean", "Boolean023")
boolean24.Type = "Cut"
boolean24.addObjects([body27])
body29 = doc.addObject("PartDesign::Body", "Body028")

sketch24 = body29.newObject("Sketcher::SketchObject", "Sketch023")
sketch24.AttachmentSupport = (doc.getObject("XY_Plane028"), [""])
sketch24.MapMode = "FlatFace"
sketch24.addGeometry(Part.LineSegment(Vector(-39, 52, 0), Vector(-39, -52, 0)), False)
sketch24.addGeometry(Part.LineSegment(Vector(-39, -52, 0), Vector(39, -52, 0)), False)
sketch24.addGeometry(Part.LineSegment(Vector(39, -52, 0), Vector(39, 52, 0)), False)
sketch24.addGeometry(Part.LineSegment(Vector(39, 52, 0), Vector(-39, 52, 0)), False)
sketch24.addConstraint(Sketcher.Constraint("Coincident", 0, 2, 1, 1))
sketch24.addConstraint(Sketcher.Constraint("Coincident", 1, 2, 2, 1))
sketch24.addConstraint(Sketcher.Constraint("Coincident", 2, 2, 3, 1))
sketch24.addConstraint(Sketcher.Constraint("Coincident", 3, 2, 0, 1))
sketch24.addConstraint(Sketcher.Constraint("Vertical", 0))
sketch24.addConstraint(Sketcher.Constraint("Horizontal", 1))
sketch24.addConstraint(Sketcher.Constraint("Vertical", 2))
sketch24.addConstraint(Sketcher.Constraint("Horizontal", 3))
sketch24.addConstraint(Sketcher.Constraint("Symmetric", 0, 2, 2, 2, -1, 1))
sketch24.addConstraint(Sketcher.Constraint("DistanceY", 0, 2, 0, 1, Q("105 mm")))
sketch24.addConstraint(Sketcher.Constraint("DistanceX", 1, 1, 1, 2, Q("77.2 mm")))
sketch24.setExpression("Constraints[9]", "Params.sketch24_height")
sketch24.setExpression("Constraints[10]", "Params.sketch24_width")
pad24 = body29.newObject("PartDesign::Pad", "Pad023")
pad24.Profile = sketch24
pad24.setExpression("Length", "Params.pad24_length")
doc.recompute()

fillet3 = body29.newObject("PartDesign::Fillet", "Fillet002")
fillet3.Base = (pad24, edges_at(pad24, [
    (-38.6, -52.5, 5),
    (-38.6, 52.5, 5),
    (38.6, -52.5, 5),
    (38.6, 52.5, 5),
]))
fillet3.setExpression("Radius", "Params.fillet3_radius")
body30 = doc.addObject("PartDesign::Body", "Body029")
body30.AllowCompound = True

sketch25 = body30.newObject("Sketcher::SketchObject", "Sketch024")
sketch25.AttachmentSupport = (doc.getObject("XY_Plane029"), [""])
sketch25.MapMode = "FlatFace"
sketch25.addGeometry(Part.LineSegment(Vector(-40, 54, 0), Vector(-40, -54, 0)), False)
sketch25.addGeometry(Part.LineSegment(Vector(-40, -54, 0), Vector(40, -54, 0)), False)
sketch25.addGeometry(Part.LineSegment(Vector(40, -54, 0), Vector(40, 54, 0)), False)
sketch25.addGeometry(Part.LineSegment(Vector(40, 54, 0), Vector(-40, 54, 0)), False)
sketch25.addConstraint(Sketcher.Constraint("Coincident", 0, 2, 1, 1))
sketch25.addConstraint(Sketcher.Constraint("Coincident", 1, 2, 2, 1))
sketch25.addConstraint(Sketcher.Constraint("Coincident", 2, 2, 3, 1))
sketch25.addConstraint(Sketcher.Constraint("Coincident", 3, 2, 0, 1))
sketch25.addConstraint(Sketcher.Constraint("Vertical", 0))
sketch25.addConstraint(Sketcher.Constraint("Horizontal", 1))
sketch25.addConstraint(Sketcher.Constraint("Vertical", 2))
sketch25.addConstraint(Sketcher.Constraint("Horizontal", 3))
sketch25.addConstraint(Sketcher.Constraint("Symmetric", 0, 2, 2, 2, -1, 1))
sketch25.addConstraint(Sketcher.Constraint("DistanceX", 1, 1, 1, 2, Q("80 mm")))
sketch25.addConstraint(Sketcher.Constraint("DistanceY", 0, 2, 0, 1, Q("107.8 mm")))
sketch25.setExpression("Constraints[9]", "Params.sketch25_width")
sketch25.setExpression("Constraints[10]", "Params.sketch25_height")
pad25 = body30.newObject("PartDesign::Pad", "Pad024")
pad25.Profile = sketch25
pad25.setExpression("Length", "Params.pad25_length")
doc.recompute()

fillet4 = body30.newObject("PartDesign::Fillet", "Fillet003")
fillet4.Base = (pad25, edges_at(pad25, [
    (-40, -53.9, 3.25),
    (-40, 53.9, 3.25),
    (40, -53.9, 3.25),
    (40, 53.9, 3.25),
]))
fillet4.setExpression("Radius", "Params.fillet4_radius")
doc.recompute()

boolean25 = body30.newObject("PartDesign::Boolean", "Boolean024")
boolean25.Type = "Cut"
boolean25.addObjects([body29])
doc.recompute()

boolean26 = body30.newObject("PartDesign::Boolean", "Boolean025")
boolean26.Type = "Fuse"
boolean26.addObjects([body14])
doc.recompute()

boolean27 = body30.newObject("PartDesign::Boolean", "Boolean026")
boolean27.Type = "Fuse"
boolean27.addObjects([body26])
doc.recompute()

boolean28 = body30.newObject("PartDesign::Boolean", "Boolean027")
boolean28.Type = "Fuse"
boolean28.addObjects([body28])
doc.recompute()

boolean29 = body30.newObject("PartDesign::Boolean", "Boolean028")
boolean29.Type = "Cut"
boolean29.addObjects([body10])
doc.recompute()

chamfer = body30.newObject("PartDesign::Chamfer", "Chamfer")
chamfer.Base = (boolean29, edges_at(boolean29, [
    (-36.65, -48.9, -2),
    (-36.65, 48.9, -2),
    (33.25, 48.9, -2),
    (33.25, -48.9, -2),
]))
chamfer.setExpression("Size", "Params.chamfer_size")
doc.recompute()

fillet5 = body30.newObject("PartDesign::Fillet", "Fillet004")
fillet5.Base = (chamfer, edges_at(chamfer, [
    (0, 56.26, -2),
    (-31.45, 36.65, 0),
    (25.45, 36.65, 0),
    (25.45, -36.65, 0),
    (-31.45, -36.65, 0),
]))
fillet5.setExpression("Radius", "Params.fillet5_radius")
doc.recompute()

chamfer2 = body30.newObject("PartDesign::Chamfer", "Chamfer001")
chamfer2.Base = (fillet5, edges_at(fillet5, [
    (0, -10.5, -2),
    (23.5, 7, -2),
    (0, 24.5, -2),
    (-23.5, 7, -2),
]))
chamfer2.setExpression("Size", "Params.chamfer2_size")
doc.recompute()

chamfer3 = body30.newObject("PartDesign::Chamfer", "Chamfer002")
chamfer3.Base = (chamfer2, edges_at(chamfer2, [
    (11.65, -18, -2),
    (-3.35, -18, -2),
    (-18.35, -18, -2),
    (-3.35, -28, -2),
]))
chamfer3.setExpression("Size", "Params.chamfer3_size")

doc.recompute()
